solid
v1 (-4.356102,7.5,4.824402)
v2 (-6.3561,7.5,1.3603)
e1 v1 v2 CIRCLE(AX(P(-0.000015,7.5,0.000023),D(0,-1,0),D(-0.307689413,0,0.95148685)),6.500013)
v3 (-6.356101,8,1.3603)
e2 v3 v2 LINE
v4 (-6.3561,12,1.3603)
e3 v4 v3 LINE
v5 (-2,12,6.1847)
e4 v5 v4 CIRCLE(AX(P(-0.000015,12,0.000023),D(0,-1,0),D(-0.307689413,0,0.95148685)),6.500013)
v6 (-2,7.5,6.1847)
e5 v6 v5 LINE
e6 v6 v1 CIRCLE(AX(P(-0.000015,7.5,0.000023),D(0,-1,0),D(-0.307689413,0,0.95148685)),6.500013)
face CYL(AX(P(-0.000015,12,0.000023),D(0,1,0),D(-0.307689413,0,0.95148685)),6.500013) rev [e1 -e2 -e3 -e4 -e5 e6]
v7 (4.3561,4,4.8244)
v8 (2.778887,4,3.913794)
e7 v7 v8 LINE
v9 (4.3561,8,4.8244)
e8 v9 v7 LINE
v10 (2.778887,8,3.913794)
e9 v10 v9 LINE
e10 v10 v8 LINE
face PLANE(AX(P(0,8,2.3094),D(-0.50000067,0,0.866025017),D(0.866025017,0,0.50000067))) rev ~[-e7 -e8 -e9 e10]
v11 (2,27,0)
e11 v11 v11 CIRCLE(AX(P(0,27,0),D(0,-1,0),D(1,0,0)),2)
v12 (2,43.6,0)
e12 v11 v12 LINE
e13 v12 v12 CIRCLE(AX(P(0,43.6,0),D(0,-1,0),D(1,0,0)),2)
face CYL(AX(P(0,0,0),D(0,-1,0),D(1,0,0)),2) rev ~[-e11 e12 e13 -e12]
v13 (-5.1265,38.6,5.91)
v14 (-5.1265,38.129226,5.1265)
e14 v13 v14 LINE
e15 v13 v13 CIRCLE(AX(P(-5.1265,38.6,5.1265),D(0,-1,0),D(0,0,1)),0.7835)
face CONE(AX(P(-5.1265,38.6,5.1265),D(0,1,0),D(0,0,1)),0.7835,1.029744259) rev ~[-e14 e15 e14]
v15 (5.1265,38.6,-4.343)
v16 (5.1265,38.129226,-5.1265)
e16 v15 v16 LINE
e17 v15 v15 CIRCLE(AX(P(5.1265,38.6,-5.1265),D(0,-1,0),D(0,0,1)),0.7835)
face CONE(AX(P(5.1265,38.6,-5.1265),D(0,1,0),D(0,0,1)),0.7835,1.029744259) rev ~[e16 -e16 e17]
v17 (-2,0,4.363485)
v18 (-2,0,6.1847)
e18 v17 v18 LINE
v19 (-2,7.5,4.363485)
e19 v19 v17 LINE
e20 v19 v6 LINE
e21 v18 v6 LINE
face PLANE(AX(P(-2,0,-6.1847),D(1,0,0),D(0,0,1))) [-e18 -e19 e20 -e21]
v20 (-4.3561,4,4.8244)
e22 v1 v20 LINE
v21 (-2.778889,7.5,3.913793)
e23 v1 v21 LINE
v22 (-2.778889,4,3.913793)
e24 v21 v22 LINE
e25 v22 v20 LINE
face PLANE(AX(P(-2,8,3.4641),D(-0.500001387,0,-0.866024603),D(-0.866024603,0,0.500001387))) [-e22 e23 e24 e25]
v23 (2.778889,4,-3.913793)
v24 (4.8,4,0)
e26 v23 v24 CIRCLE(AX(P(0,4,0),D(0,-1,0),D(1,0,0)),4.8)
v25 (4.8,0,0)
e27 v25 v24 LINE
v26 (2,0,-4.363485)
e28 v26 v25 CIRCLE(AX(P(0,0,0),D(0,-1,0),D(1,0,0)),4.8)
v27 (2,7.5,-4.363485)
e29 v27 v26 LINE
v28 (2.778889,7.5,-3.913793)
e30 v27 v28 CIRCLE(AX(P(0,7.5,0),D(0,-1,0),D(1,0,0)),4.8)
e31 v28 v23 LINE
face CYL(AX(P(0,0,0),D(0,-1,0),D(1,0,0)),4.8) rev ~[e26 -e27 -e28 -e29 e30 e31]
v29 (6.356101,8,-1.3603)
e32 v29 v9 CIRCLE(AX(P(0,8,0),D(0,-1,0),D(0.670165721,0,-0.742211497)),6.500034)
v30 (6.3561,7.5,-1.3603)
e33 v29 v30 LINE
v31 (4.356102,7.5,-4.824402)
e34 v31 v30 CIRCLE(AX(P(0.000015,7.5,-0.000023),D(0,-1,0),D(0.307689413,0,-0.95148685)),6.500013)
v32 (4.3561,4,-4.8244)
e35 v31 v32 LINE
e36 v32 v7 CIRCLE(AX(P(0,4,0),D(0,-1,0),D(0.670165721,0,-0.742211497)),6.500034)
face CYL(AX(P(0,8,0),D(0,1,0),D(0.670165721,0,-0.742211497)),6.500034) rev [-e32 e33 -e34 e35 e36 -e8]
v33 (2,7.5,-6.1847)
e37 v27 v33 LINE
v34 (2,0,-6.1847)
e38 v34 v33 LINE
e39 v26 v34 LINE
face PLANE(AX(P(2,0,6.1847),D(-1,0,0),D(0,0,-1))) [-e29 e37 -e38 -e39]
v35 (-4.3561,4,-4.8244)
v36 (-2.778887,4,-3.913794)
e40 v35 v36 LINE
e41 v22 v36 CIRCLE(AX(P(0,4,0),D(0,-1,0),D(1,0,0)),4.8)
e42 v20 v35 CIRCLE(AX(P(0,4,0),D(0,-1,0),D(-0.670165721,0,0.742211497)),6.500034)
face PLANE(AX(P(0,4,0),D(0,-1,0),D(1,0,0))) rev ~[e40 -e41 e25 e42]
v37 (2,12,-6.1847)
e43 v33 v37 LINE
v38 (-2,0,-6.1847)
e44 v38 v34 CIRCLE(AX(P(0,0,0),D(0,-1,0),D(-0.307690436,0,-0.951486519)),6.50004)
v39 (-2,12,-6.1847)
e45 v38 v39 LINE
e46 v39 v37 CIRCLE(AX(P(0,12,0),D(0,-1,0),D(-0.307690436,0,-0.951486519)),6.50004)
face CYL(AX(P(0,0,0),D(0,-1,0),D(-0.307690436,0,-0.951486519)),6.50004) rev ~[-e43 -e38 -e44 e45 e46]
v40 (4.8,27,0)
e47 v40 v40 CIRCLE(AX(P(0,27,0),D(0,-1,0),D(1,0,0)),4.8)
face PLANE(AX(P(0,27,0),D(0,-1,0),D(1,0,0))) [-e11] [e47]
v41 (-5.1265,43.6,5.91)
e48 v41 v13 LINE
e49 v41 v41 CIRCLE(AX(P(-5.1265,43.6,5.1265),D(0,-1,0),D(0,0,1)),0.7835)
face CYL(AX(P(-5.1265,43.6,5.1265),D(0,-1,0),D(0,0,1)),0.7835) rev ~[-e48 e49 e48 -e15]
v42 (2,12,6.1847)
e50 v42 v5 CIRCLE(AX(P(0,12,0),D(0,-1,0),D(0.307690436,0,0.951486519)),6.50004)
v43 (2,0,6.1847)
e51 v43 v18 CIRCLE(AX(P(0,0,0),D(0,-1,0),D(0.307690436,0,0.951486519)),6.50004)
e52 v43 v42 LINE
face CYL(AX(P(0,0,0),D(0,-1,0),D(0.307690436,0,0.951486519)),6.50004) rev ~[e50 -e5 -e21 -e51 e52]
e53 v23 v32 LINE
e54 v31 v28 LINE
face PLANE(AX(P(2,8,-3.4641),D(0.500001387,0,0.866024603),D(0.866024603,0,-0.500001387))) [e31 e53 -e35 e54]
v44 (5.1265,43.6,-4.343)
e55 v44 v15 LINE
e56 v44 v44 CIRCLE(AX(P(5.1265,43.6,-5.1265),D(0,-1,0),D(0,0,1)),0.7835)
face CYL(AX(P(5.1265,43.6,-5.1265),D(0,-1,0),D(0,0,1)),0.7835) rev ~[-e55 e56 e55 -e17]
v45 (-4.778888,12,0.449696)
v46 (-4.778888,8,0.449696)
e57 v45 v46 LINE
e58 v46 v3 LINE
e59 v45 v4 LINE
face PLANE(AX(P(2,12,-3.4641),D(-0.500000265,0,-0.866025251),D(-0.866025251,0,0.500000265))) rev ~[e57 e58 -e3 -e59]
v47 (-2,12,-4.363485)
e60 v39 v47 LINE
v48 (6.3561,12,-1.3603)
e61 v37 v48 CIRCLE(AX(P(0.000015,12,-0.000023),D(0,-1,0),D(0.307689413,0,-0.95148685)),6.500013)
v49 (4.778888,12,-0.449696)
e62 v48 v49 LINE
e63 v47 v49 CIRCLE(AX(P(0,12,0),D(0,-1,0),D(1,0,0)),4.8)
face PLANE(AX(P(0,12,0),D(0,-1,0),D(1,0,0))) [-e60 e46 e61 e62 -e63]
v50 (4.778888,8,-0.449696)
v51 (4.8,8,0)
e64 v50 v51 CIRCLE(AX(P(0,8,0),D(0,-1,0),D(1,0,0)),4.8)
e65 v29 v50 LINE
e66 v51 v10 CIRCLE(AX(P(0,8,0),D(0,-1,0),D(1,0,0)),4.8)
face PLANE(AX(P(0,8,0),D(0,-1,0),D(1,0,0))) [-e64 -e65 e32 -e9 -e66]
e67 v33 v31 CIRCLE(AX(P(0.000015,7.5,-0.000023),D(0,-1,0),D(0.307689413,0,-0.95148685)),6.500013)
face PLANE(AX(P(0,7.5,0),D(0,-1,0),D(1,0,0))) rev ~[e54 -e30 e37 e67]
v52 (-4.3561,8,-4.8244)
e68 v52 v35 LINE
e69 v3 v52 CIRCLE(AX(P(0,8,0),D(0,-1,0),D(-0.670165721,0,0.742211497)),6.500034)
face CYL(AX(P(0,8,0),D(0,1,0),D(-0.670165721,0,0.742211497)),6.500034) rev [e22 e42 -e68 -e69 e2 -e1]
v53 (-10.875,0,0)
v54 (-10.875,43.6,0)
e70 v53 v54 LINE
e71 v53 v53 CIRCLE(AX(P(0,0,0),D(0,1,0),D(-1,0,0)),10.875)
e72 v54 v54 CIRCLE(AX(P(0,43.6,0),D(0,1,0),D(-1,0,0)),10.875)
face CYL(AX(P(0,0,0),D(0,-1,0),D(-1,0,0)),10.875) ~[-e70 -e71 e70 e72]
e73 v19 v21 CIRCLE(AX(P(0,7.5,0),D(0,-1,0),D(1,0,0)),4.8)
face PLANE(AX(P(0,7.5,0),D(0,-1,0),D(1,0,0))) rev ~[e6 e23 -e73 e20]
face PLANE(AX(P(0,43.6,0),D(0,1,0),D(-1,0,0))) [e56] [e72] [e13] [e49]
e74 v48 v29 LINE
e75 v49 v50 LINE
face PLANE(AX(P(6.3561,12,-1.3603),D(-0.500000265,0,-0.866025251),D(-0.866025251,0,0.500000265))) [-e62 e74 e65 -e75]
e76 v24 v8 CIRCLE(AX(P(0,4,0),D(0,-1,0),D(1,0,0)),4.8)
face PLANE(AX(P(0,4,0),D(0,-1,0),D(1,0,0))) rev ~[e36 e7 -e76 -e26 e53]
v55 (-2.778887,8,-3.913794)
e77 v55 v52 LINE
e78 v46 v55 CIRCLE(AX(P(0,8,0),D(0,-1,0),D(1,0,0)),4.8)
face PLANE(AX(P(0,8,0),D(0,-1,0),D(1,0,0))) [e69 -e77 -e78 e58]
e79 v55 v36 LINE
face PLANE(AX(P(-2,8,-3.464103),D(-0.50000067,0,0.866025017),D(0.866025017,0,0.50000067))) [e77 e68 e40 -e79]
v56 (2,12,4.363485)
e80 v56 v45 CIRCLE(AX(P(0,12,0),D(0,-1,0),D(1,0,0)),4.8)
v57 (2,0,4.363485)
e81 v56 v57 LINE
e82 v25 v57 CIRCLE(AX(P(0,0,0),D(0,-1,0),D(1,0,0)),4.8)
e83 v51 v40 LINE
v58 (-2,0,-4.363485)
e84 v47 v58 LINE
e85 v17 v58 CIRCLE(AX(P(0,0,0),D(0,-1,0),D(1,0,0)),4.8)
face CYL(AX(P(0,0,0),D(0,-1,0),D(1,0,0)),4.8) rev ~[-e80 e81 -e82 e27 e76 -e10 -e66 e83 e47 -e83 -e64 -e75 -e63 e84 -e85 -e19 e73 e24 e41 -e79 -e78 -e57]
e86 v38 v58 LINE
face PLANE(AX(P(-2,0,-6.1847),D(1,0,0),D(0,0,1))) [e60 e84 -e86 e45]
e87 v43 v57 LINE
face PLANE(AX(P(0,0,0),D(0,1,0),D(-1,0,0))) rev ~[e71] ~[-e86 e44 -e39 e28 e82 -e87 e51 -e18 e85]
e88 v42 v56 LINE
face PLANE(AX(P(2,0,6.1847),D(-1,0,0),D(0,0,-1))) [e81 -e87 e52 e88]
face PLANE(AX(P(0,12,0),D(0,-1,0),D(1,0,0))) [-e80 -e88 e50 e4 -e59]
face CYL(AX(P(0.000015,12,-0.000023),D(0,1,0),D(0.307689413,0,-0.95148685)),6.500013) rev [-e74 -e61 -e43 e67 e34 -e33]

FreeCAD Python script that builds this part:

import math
import FreeCAD as App
import Part
import Sketcher

V = App.Vector
Q = App.Units.Quantity

doc = App.newDocument("Part")
params = doc.addObject("Spreadsheet::Sheet", "Params")
for row, (alias, value) in enumerate([
    ("sketch1_diameter", "21.75 mm"),
    ("pad1_length", "43.6 mm"),
    ("sketch2_diameter", "4 mm"),
    ("sketch3_radius", "6.5 mm"),
    ("pocket2_length", "12 mm"),
    ("sketch4_radius", "6.5 mm"),
    ("pocket3_length", "4.5 mm"),
    ("sketch5_radius", "6.5 mm"),
    ("sketch5_length", "5.03 mm"),
    ("pocket4_length", "4 mm"),
    ("sketch6_diameter", "9.6 mm"),
    ("pocket5_length", "27 mm"),
    ("hole_diameter", "1.567 mm"),
    ("hole_depth", "5 mm"),
], start=1):
    params.set(f"A{row}", alias)
    params.set(f"B{row}", "=" + value)
    params.setAlias(f"B{row}", alias)

body = doc.addObject("PartDesign::Body", "Body")

# Sketch on XZ plane
sketch1 = body.newObject("Sketcher::SketchObject", "Sketch")
sketch1.AttachmentSupport = (doc.getObject("XZ_Plane"), [""])
sketch1.MapMode = "FlatFace"
sketch1.addGeometry(Part.Circle(V(0, 0, 0), V(0, 0, 1), 11), False)
sketch1.addConstraint(Sketcher.Constraint("Coincident", 0, 3, -1, 1))
sketch1.addConstraint(Sketcher.Constraint("Diameter", 0, 21.75))
sketch1.setExpression("Constraints[1]", "Params.sketch1_diameter")
pad1 = body.newObject("PartDesign::Pad", "Pad")
pad1.Profile = sketch1
pad1.setExpression("Length", "Params.pad1_length")
pad1.Reversed = True

# Sketch on XZ plane
sketch2 = body.newObject("Sketcher::SketchObject", "Sketch001")
sketch2.AttachmentSupport = (doc.getObject("XZ_Plane"), [""])
sketch2.MapMode = "FlatFace"
sketch2.addGeometry(Part.Circle(V(0, 0, 0), V(0, 0, 1), 2), False)
sketch2.addConstraint(Sketcher.Constraint("Coincident", 0, 3, -1, 1))
sketch2.addConstraint(Sketcher.Constraint("Diameter", 0, 4.0))
sketch2.setExpression("Constraints[1]", "Params.sketch2_diameter")
pocket1 = body.newObject("PartDesign::Pocket", "Pocket")
pocket1.Profile = sketch2
pocket1.Type = "ThroughAll"

# Sketch on XZ plane
sketch3 = body.newObject("Sketcher::SketchObject", "Sketch002")
sketch3.AttachmentSupport = (doc.getObject("XZ_Plane"), [""])
sketch3.MapMode = "FlatFace"
sketch3.addGeometry(Part.LineSegment(V(-2, 6.2, 0), V(-2, -6.2, 0)), False)
sketch3.addGeometry(Part.ArcOfCircle(Part.Circle(V(0, 0, 0), V(0, 0, 1), 6.5), math.radians(-108), math.radians(-72)), False)
sketch3.addGeometry(Part.LineSegment(V(2, -6.2, 0), V(2, 6.2, 0)), False)
sketch3.addGeometry(Part.ArcOfCircle(Part.Circle(V(0, 0, 0), V(0, 0, 1), 6.5), math.radians(72), math.radians(108)), False)
sketch3.addConstraint(Sketcher.Constraint("Coincident", 0, 2, 1, 1))
sketch3.addConstraint(Sketcher.Constraint("Coincident", 1, 2, 2, 1))
sketch3.addConstraint(Sketcher.Constraint("Coincident", 2, 2, 3, 1))
sketch3.addConstraint(Sketcher.Constraint("Coincident", 3, 2, 0, 1))
sketch3.addConstraint(Sketcher.Constraint("Vertical", 0))
sketch3.addConstraint(Sketcher.Constraint("Vertical", 2))
sketch3.addConstraint(Sketcher.Constraint("Coincident", 1, 3, -1, 1))
sketch3.addConstraint(Sketcher.Constraint("Coincident", 3, 3, -1, 1))
sketch3.addConstraint(Sketcher.Constraint("Equal", 1, 3))
sketch3.addConstraint(Sketcher.Constraint("Horizontal", 0, 2, 1, 2))
sketch3.addConstraint(Sketcher.Constraint("Radius", 1, 6.5))
sketch3.addConstraint(Sketcher.Constraint("DistanceX", 0, 2, -1, 1, 2.0))
sketch3.setExpression("Constraints[10]", "Params.sketch3_radius")
pocket2 = body.newObject("PartDesign::Pocket", "Pocket001")
pocket2.Profile = sketch3
pocket2.setExpression("Length", "Params.pocket2_length")

# Sketch on XZ plane
sketch4 = body.newObject("Sketcher::SketchObject", "Sketch003")
sketch4.AttachmentSupport = (doc.getObject("XZ_Plane"), [""])
sketch4.MapMode = "FlatFace"
sketch4.AttachmentOffset = App.Placement(V(0, 0, -12), App.Rotation())
sketch4.addGeometry(Part.LineSegment(V(-2, 3.5, 0), V(-2, 6.2, 0)), False)
sketch4.addGeometry(Part.ArcOfCircle(Part.Circle(V(0, 0, 0), V(0, 0, 1), 6.5), math.radians(108), math.radians(168)), False)
sketch4.addGeometry(Part.LineSegment(V(-6.4, 1.4, 0), V(2, -3.5, 0)), False)
sketch4.addGeometry(Part.LineSegment(V(2, -3.5, 0), V(2, -6.2, 0)), False)
sketch4.addGeometry(Part.ArcOfCircle(Part.Circle(V(0, 0, 0), V(0, 0, 1), 6.5), math.radians(-72), math.radians(-12)), False)
sketch4.addGeometry(Part.LineSegment(V(6.4, -1.4, 0), V(-2, 3.5, 0)), False)
sketch4.addConstraint(Sketcher.Constraint("Coincident", 0, 2, 1, 1))
sketch4.addConstraint(Sketcher.Constraint("Coincident", 1, 2, 2, 1))
sketch4.addConstraint(Sketcher.Constraint("Coincident", 2, 2, 3, 1))
sketch4.addConstraint(Sketcher.Constraint("Coincident", 3, 2, 4, 1))
sketch4.addConstraint(Sketcher.Constraint("Coincident", 4, 2, 5, 1))
sketch4.addConstraint(Sketcher.Constraint("Coincident", 5, 2, 0, 1))
sketch4.addConstraint(Sketcher.Constraint("Vertical", 0))
sketch4.addConstraint(Sketcher.Constraint("Vertical", 3))
sketch4.addConstraint(Sketcher.Constraint("Coincident", 1, 3, -1, 1))
sketch4.addConstraint(Sketcher.Constraint("Coincident", 4, 3, -1, 1))
sketch4.addConstraint(Sketcher.Constraint("Equal", 1, 4))
sketch4.addConstraint(Sketcher.Constraint("Symmetric", 2, 2, 5, 2, -1, 1))
sketch4.addConstraint(Sketcher.Constraint("Parallel", 2, 5))
sketch4.addConstraint(Sketcher.Constraint("DistanceX", 0, 2, 2, 2, 4.0))
sketch4.addConstraint(Sketcher.Constraint("Radius", 1, 6.5))
sketch4.addConstraint(Sketcher.Constraint("Angle", 2, Q("-30 deg")))
sketch4.addConstraint(Sketcher.Constraint("DistanceY", 0, 1, 0, 2, 2.7206))
sketch4.setExpression("Constraints[14]", "Params.sketch4_radius")
pocket3 = body.newObject("PartDesign::Pocket", "Pocket002")
pocket3.Profile = sketch4
pocket3.setExpression("Length", "Params.pocket3_length")
pocket3.Reversed = True

# Sketch on XZ plane
sketch5 = body.newObject("Sketcher::SketchObject", "Sketch004")
sketch5.AttachmentSupport = (doc.getObject("XZ_Plane"), [""])
sketch5.MapMode = "FlatFace"
sketch5.AttachmentOffset = App.Placement(V(0, 0, -8), App.Rotation())
sketch5.addGeometry(Part.LineSegment(V(2, 1.2, 0), V(2, -3.5, 0)), False)
sketch5.addGeometry(Part.LineSegment(V(2, -3.5, 0), V(4.4, -4.8, 0)), False)
sketch5.addGeometry(Part.ArcOfCircle(Part.Circle(V(0, 0, 0), V(0, 0, 1), 6.5), math.radians(-48), math.radians(48)), False)
sketch5.addGeometry(Part.LineSegment(V(4.4, 4.8, 0), V(0, 2.3, 0)), False)
sketch5.addGeometry(Part.LineSegment(V(0, 2.3, 0), V(2, 1.2, 0)), False)
sketch5.addGeometry(Part.LineSegment(V(-2, -1.2, 0), V(-2, 3.5, 0)), False)
sketch5.addGeometry(Part.LineSegment(V(-2, 3.5, 0), V(-4.4, 4.8, 0)), False)
sketch5.addGeometry(Part.ArcOfCircle(Part.Circle(V(0, 0, 0), V(0, 0, 1), 6.5), math.radians(132), math.radians(228)), False)
sketch5.addGeometry(Part.LineSegment(V(-4.4, -4.8, 0), V(0, -2.3, 0)), False)
sketch5.addGeometry(Part.LineSegment(V(0, -2.3, 0), V(-2, -1.2, 0)), False)
sketch5.addConstraint(Sketcher.Constraint("Coincident", 0, 2, 1, 1))
sketch5.addConstraint(Sketcher.Constraint("Coincident", 1, 2, 2, 1))
sketch5.addConstraint(Sketcher.Constraint("Coincident", 2, 2, 3, 1))
sketch5.addConstraint(Sketcher.Constraint("Coincident", 3, 2, 4, 1))
sketch5.addConstraint(Sketcher.Constraint("Coincident", 4, 2, 0, 1))
sketch5.addConstraint(Sketcher.Constraint("Coincident", 5, 2, 6, 1))
sketch5.addConstraint(Sketcher.Constraint("Coincident", 6, 2, 7, 1))
sketch5.addConstraint(Sketcher.Constraint("Coincident", 7, 2, 8, 1))
sketch5.addConstraint(Sketcher.Constraint("Coincident", 8, 2, 9, 1))
sketch5.addConstraint(Sketcher.Constraint("Coincident", 9, 2, 5, 1))
sketch5.addConstraint(Sketcher.Constraint("Vertical", 0))
sketch5.addConstraint(Sketcher.Constraint("Vertical", 5))
sketch5.addConstraint(Sketcher.Constraint("Coincident", 2, 3, -1, 1))
sketch5.addConstraint(Sketcher.Constraint("Coincident", 7, 3, -1, 1))
sketch5.addConstraint(Sketcher.Constraint("Equal", 2, 7))
sketch5.addConstraint(Sketcher.Constraint("Symmetric", 0, 2, 5, 2, -1, 1))
sketch5.addConstraint(Sketcher.Constraint("Symmetric", 3, 2, 8, 2, -1, 1))
sketch5.addConstraint(Sketcher.Constraint("PointOnObject", 3, 2, -2))
sketch5.addConstraint(Sketcher.Constraint("Parallel", 1, 4))
sketch5.addConstraint(Sketcher.Constraint("Parallel", 4, 6))
sketch5.addConstraint(Sketcher.Constraint("Parallel", 3, 8))
sketch5.addConstraint(Sketcher.Constraint("Parallel", 6, 9))
sketch5.addConstraint(Sketcher.Constraint("Horizontal", 2, 2, 6, 2))
sketch5.addConstraint(Sketcher.Constraint("DistanceX", 5, 2, 4, 2, 4.0))
sketch5.addConstraint(Sketcher.Constraint("Radius", 2, 6.5))
sketch5.addConstraint(Sketcher.Constraint("Angle", 1, Q("-30 deg")))
sketch5.addConstraint(Sketcher.Constraint("Angle", 3, Q("-150 deg")))
sketch5.addConstraint(Sketcher.Constraint("Distance", 3, 5.03))
sketch5.setExpression("Constraints[24]", "Params.sketch5_radius")
sketch5.setExpression("Constraints[27]", "Params.sketch5_length")
pocket4 = body.newObject("PartDesign::Pocket", "Pocket003")
pocket4.Profile = sketch5
pocket4.setExpression("Length", "Params.pocket4_length")
pocket4.Reversed = True

# Sketch on XZ plane
sketch6 = body.newObject("Sketcher::SketchObject", "Sketch005")
sketch6.AttachmentSupport = (doc.getObject("XZ_Plane"), [""])
sketch6.MapMode = "FlatFace"
sketch6.addGeometry(Part.Circle(V(0, 0, 0), V(0, 0, 1), 4.8), False)
sketch6.addConstraint(Sketcher.Constraint("Coincident", 0, 3, -1, 1))
sketch6.addConstraint(Sketcher.Constraint("Diameter", 0, 9.6))
sketch6.setExpression("Constraints[1]", "Params.sketch6_diameter")
pocket5 = body.newObject("PartDesign::Pocket", "Pocket004")
pocket5.Profile = sketch6
pocket5.setExpression("Length", "Params.pocket5_length")

# Sketch on XZ plane
sketch7 = body.newObject("Sketcher::SketchObject", "Sketch006")
sketch7.AttachmentSupport = (doc.getObject("XZ_Plane"), [""])
sketch7.MapMode = "FlatFace"
sketch7.AttachmentOffset = App.Placement(V(0, 0, -43.6), App.Rotation())
sketch7.addGeometry(Part.Circle(V(-5.1, 5.1, 0), V(0, 0, 1), 0.8), False)
sketch7.addGeometry(Part.Circle(V(5.1, -5.1, 0), V(0, 0, 1), 0.8), False)
sketch7.addConstraint(Sketcher.Constraint("Equal", 0, 1))
sketch7.addConstraint(Sketcher.Constraint("Symmetric", 0, 3, 1, 3, -1, 1))
sketch7.addConstraint(Sketcher.Constraint("Diameter", 0, 1.567))
sketch7.addConstraint(Sketcher.Constraint("DistanceX", 0, 3, 1, 3, 10.253))
sketch7.addConstraint(Sketcher.Constraint("DistanceY", 1, 3, 0, 3, 10.253))
doc.recompute()
hole = body.newObject("PartDesign::Hole", "Hole")
hole.Profile = sketch7
hole.ThreadType = "None"
hole.setExpression("Diameter", "Params.hole_diameter")
hole.DepthType = "Dimension"
hole.setExpression("Depth", "Params.hole_depth")
hole.DrillPoint = "Angled"
hole.DrillPointAngle = 118
hole.Reversed = True

doc.recompute()
